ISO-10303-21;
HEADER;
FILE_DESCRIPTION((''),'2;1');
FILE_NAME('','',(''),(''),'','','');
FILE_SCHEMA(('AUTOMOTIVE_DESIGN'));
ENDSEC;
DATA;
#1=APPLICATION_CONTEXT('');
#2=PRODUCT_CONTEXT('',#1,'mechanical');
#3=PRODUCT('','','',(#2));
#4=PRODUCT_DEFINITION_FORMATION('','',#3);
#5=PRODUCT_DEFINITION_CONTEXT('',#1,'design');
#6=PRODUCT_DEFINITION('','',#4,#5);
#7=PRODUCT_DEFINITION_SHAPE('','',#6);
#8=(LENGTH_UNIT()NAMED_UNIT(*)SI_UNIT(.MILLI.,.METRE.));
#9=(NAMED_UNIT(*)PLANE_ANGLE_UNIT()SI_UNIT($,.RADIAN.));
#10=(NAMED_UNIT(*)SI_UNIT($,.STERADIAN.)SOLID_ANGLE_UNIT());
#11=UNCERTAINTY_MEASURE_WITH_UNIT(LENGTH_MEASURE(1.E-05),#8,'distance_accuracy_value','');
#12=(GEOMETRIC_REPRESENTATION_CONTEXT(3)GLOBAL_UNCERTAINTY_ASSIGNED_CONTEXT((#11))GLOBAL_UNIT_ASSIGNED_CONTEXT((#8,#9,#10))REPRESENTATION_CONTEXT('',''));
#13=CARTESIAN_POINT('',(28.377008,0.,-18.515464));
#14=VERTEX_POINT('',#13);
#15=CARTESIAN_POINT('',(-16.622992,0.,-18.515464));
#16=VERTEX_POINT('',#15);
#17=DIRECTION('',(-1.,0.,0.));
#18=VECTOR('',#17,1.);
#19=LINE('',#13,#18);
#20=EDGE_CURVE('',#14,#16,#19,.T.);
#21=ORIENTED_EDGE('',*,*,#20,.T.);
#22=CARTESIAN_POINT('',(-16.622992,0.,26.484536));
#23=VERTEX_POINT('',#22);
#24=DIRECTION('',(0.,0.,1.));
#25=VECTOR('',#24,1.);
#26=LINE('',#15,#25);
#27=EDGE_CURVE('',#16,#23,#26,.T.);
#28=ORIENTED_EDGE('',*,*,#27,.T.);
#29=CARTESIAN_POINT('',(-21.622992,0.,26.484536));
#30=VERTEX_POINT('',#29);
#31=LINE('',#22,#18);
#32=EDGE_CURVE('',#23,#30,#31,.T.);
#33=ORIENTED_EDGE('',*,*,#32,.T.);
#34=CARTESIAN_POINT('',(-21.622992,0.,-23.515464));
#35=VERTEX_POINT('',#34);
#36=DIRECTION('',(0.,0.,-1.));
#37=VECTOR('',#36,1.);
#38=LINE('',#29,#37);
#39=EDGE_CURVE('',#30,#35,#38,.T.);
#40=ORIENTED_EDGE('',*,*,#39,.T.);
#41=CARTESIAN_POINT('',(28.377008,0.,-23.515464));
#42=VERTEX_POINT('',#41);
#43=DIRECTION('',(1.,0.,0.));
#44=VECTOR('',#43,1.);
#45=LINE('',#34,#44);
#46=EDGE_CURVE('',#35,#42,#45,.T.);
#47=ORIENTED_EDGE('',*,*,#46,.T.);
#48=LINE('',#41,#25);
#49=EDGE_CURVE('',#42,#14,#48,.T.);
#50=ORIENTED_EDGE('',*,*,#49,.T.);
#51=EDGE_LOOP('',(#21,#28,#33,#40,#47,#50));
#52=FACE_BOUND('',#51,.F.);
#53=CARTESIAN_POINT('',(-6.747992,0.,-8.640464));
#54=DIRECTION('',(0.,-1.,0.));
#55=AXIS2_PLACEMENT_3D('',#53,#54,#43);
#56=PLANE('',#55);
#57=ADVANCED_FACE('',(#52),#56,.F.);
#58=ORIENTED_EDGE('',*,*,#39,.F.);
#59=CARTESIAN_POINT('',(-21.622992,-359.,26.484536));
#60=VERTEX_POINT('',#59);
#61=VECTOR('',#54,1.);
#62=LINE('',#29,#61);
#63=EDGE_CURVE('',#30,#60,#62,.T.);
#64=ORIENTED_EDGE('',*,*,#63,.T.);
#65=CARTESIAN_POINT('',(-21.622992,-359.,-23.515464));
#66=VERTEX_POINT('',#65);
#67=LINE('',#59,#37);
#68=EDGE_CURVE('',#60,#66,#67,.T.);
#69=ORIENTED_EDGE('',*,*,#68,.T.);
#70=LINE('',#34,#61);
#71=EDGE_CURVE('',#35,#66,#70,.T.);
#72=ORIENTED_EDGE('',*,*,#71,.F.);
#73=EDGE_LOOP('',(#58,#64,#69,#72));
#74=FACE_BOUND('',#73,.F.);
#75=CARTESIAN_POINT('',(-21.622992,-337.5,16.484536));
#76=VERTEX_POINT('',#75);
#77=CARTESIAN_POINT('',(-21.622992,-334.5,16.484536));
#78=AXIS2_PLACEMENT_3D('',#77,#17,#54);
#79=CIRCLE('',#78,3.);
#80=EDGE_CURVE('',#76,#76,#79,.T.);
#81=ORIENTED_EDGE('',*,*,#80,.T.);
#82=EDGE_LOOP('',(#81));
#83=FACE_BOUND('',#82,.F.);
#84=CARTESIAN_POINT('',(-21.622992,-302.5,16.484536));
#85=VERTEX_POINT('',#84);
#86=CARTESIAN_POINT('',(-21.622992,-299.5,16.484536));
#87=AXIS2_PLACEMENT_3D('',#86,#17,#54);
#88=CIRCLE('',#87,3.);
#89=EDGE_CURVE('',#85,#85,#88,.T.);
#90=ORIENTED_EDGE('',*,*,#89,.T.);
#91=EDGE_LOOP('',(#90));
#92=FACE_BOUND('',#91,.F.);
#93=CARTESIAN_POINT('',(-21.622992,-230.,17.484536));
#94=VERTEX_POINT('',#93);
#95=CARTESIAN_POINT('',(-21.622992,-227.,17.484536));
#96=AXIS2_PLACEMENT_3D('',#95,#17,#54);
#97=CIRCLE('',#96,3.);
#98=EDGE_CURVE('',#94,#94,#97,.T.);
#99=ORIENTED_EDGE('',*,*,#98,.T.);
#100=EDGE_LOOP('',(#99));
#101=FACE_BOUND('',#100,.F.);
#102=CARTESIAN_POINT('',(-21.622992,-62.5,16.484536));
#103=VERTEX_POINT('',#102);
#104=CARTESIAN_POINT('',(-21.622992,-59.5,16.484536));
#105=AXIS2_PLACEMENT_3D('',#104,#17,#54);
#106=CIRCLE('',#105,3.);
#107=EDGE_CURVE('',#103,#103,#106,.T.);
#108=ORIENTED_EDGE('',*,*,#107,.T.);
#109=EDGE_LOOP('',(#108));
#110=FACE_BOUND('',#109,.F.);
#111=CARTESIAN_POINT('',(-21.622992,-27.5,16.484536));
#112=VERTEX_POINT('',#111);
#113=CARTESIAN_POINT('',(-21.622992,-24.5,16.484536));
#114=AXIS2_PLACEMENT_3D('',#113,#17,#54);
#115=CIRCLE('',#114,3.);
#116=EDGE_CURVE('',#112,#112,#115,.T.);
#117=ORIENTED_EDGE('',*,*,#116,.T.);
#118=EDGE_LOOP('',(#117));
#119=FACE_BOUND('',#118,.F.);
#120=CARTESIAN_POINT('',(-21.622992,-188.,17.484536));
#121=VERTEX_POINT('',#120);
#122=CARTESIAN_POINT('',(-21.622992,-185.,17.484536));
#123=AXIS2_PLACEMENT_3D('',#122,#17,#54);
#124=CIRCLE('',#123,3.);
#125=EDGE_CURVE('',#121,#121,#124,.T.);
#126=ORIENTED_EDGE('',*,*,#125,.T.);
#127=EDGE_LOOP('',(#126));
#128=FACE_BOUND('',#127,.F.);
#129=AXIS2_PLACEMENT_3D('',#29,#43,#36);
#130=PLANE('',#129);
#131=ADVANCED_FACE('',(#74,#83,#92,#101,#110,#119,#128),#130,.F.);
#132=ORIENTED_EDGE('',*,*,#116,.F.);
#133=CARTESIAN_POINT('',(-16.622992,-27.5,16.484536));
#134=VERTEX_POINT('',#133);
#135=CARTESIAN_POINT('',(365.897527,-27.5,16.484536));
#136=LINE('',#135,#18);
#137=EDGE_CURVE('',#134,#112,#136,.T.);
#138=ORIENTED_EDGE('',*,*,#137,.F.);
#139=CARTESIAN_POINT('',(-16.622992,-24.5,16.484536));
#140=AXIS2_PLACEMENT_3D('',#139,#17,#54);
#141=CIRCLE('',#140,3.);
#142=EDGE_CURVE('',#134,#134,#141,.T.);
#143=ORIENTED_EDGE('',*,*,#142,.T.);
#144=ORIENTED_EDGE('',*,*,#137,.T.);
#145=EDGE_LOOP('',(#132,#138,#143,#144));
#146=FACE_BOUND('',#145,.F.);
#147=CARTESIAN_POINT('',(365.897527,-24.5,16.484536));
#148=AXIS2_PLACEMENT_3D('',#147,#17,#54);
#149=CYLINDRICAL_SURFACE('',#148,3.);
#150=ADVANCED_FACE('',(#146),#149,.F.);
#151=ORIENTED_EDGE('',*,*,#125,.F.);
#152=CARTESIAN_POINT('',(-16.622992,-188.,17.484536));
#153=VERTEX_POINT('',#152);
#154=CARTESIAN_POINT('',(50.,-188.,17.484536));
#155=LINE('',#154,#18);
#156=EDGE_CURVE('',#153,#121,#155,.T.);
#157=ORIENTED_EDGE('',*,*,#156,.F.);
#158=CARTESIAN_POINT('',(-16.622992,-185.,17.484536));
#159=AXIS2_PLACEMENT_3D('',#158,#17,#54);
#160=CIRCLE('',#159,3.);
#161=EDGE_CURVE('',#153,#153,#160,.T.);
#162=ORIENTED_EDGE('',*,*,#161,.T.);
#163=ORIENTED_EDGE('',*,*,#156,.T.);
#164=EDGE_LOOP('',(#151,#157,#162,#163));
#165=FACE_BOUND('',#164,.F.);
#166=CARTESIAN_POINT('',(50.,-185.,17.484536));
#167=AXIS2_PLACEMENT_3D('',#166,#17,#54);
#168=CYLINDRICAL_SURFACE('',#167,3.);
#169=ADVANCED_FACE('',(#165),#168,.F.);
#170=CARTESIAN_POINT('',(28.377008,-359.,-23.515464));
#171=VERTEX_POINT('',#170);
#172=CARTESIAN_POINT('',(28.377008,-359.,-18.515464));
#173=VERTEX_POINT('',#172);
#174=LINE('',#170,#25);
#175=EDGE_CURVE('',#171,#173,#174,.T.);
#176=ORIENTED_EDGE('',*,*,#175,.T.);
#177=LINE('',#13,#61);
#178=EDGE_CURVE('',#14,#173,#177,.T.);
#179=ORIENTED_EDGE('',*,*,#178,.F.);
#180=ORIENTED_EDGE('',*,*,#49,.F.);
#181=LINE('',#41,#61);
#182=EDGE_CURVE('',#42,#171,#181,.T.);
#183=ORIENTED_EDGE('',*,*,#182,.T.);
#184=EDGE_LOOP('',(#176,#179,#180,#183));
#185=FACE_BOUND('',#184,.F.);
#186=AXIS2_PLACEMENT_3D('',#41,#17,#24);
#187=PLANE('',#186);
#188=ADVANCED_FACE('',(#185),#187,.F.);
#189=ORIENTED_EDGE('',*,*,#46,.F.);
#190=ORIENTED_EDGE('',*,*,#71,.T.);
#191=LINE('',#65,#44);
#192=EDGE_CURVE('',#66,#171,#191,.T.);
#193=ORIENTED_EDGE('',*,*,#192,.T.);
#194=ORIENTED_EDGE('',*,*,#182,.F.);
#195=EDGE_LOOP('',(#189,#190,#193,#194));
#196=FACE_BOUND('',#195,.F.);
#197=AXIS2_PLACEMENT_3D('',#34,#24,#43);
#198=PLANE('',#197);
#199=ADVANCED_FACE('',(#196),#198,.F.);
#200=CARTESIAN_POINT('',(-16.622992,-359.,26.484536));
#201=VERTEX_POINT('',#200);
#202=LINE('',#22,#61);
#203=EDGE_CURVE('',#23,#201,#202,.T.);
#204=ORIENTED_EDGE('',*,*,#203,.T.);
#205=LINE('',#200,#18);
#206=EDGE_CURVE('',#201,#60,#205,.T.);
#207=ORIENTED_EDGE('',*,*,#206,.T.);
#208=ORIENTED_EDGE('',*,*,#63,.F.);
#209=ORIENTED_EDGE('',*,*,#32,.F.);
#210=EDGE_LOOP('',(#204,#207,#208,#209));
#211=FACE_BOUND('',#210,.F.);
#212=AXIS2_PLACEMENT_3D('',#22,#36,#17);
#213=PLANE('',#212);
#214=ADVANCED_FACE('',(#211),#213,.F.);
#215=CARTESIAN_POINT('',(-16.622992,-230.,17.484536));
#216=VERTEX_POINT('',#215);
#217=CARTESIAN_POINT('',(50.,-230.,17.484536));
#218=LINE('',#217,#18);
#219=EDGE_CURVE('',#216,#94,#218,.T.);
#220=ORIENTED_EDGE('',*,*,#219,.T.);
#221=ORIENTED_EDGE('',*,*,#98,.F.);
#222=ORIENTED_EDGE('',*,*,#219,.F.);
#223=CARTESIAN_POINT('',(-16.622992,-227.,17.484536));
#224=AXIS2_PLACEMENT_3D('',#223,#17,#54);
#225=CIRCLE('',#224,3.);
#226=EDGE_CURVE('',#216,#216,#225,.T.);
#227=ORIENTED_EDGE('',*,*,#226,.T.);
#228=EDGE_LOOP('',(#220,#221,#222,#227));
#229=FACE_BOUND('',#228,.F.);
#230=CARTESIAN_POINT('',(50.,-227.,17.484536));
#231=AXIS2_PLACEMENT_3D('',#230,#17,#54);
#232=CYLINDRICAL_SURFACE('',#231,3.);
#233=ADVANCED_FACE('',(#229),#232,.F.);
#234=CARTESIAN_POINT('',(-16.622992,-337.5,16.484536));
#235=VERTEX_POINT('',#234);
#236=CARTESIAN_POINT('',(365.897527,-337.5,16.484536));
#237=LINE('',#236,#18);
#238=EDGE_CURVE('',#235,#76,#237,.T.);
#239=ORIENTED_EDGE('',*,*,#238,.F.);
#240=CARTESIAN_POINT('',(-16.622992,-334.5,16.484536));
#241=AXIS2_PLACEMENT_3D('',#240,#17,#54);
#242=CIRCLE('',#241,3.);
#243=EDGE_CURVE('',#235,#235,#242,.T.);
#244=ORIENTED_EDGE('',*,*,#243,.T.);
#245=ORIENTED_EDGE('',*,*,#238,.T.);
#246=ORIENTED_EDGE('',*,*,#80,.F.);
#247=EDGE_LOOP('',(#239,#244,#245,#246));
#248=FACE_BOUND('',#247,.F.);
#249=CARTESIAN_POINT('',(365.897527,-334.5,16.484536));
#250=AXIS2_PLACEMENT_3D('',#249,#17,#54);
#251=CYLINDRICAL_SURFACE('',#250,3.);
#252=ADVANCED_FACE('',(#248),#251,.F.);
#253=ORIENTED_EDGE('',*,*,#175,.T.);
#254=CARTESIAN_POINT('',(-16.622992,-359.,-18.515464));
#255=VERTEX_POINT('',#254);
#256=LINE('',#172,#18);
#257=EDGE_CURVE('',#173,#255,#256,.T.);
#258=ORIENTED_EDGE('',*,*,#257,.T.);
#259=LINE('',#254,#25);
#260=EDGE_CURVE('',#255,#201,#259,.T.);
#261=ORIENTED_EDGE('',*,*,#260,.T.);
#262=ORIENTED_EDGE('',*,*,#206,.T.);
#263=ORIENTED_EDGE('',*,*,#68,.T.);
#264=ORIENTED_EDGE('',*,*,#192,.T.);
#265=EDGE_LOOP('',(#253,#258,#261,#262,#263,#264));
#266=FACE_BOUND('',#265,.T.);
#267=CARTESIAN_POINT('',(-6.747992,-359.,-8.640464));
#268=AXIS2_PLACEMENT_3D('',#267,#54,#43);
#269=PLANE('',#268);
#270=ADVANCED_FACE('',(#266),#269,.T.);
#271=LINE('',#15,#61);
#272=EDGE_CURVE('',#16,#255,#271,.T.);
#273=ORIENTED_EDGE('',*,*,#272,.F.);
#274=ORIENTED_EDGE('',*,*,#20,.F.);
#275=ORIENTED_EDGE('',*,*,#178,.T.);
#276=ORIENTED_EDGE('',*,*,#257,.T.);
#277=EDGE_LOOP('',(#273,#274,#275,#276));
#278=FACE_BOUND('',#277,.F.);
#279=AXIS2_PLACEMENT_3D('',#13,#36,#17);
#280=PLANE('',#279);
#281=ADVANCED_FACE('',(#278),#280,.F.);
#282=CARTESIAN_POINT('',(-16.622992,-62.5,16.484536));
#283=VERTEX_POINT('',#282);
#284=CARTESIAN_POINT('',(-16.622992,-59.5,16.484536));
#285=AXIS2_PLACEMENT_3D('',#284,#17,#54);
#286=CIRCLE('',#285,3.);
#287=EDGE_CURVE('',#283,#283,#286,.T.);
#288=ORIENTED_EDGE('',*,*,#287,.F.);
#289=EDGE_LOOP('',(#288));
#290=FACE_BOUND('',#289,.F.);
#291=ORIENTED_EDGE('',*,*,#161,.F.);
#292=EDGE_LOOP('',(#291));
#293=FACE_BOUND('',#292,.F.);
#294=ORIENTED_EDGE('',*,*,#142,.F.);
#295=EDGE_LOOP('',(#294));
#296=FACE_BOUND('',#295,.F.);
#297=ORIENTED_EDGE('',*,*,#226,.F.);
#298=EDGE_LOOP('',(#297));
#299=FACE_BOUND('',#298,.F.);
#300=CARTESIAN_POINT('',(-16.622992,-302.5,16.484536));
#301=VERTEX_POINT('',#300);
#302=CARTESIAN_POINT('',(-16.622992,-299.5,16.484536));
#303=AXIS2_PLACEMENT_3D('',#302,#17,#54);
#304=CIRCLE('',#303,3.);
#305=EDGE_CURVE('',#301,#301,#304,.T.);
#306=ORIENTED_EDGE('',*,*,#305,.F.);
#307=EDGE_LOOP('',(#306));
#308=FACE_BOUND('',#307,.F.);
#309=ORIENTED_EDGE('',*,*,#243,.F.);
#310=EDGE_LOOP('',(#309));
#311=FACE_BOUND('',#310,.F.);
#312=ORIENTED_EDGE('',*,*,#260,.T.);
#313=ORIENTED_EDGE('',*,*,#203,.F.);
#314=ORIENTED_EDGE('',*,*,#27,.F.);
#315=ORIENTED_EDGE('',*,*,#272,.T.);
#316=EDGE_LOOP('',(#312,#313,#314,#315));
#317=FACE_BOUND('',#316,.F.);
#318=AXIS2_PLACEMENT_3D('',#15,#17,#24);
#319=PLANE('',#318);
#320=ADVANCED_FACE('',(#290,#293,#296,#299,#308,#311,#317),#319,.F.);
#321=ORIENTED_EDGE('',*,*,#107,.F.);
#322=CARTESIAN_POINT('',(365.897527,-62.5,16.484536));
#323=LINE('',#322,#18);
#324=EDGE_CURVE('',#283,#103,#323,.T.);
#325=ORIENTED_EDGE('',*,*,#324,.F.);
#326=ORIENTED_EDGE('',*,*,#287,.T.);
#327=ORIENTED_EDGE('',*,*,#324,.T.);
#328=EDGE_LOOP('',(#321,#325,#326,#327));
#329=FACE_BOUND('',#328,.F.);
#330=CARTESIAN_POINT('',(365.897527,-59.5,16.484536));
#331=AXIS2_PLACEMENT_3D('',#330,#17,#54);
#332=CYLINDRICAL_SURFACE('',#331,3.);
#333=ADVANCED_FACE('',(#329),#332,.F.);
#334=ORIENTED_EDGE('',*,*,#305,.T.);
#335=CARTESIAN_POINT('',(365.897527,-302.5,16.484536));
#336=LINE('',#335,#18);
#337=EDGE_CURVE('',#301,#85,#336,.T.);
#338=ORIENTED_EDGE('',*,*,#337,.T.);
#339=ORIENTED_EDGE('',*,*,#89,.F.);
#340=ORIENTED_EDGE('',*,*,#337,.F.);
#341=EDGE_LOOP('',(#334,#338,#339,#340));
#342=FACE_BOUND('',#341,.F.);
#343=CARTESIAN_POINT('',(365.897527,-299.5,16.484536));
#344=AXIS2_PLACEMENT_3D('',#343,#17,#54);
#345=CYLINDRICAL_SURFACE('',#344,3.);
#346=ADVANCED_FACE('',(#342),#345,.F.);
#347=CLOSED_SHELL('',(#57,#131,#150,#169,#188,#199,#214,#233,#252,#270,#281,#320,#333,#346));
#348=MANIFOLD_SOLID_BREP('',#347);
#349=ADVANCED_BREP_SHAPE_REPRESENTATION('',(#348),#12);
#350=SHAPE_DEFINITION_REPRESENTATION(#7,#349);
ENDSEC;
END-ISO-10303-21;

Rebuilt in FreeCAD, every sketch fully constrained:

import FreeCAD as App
import Part
import Sketcher
Q = App.Units.Quantity


def add_polygon(sketch, points):
    """Adds a closed chain of lines whose ends are joined by coincident constraints."""
    first, n = sketch.GeometryCount, len(points)
    for a, b in zip(points, points[1:] + points[:1]):
        sketch.addGeometry(Part.LineSegment(App.Vector(*a, 0), App.Vector(*b, 0)), False)
    for i in range(n):
        sketch.addConstraint(Sketcher.Constraint("Coincident", first + i, 2, first + (i + 1) % n, 1))

doc = App.newDocument("Part")
body = doc.addObject("PartDesign::Body", "Body")

# Sketch on XZ plane
sketch1 = body.newObject("Sketcher::SketchObject", "Sketch")
sketch1.AttachmentSupport = (doc.getObject("XZ_Plane"), [""])
sketch1.MapMode = "FlatFace"
add_polygon(sketch1, [(-17, 26), (-22, 26), (-22, -24), (28, -24), (28, -19), (-17, -19)])  # lines 0-5
sketch1.addConstraint(Sketcher.Constraint("Horizontal", 0))
sketch1.addConstraint(Sketcher.Constraint("Vertical", 1))
sketch1.addConstraint(Sketcher.Constraint("Horizontal", 2))
sketch1.addConstraint(Sketcher.Constraint("Vertical", 3))
sketch1.addConstraint(Sketcher.Constraint("Horizontal", 4))
sketch1.addConstraint(Sketcher.Constraint("Vertical", 5))
sketch1.addConstraint(Sketcher.Constraint("Equal", 2, 1))
sketch1.addConstraint(Sketcher.Constraint("Equal", 0, 3))
sketch1.addConstraint(Sketcher.Constraint("DistanceX", 0, 2, 0, 1, Q("5 mm")))
sketch1.addConstraint(Sketcher.Constraint("DistanceX", 2, 1, 2, 2, Q("50 mm")))
sketch1.addConstraint(Sketcher.Constraint("DistanceX", 0, 2, -1, 1, Q("21.622992 mm")))
sketch1.addConstraint(Sketcher.Constraint("DistanceY", -1, 1, 0, 2, Q("26.484536 mm")))
pad1 = body.newObject("PartDesign::Pad", "Pad")
pad1.Profile = sketch1
pad1.Length = 359

# Sketch on YZ plane
sketch2 = body.newObject("Sketcher::SketchObject", "Sketch001")
sketch2.AttachmentSupport = (doc.getObject("YZ_Plane"), [""])
sketch2.MapMode = "FlatFace"
sketch2.addGeometry(Part.Circle(App.Vector(-334.5, 16.5, 0), App.Vector(0, 0, 1), 3), False)
sketch2.addConstraint(Sketcher.Constraint("Diameter", 0, Q("6 mm")))
sketch2.addConstraint(Sketcher.Constraint("DistanceX", 0, 3, -1, 1, Q("334.5 mm")))
sketch2.addConstraint(Sketcher.Constraint("DistanceY", -1, 1, 0, 3, Q("16.484536 mm")))
doc.recompute()
hole = body.newObject("PartDesign::Hole", "Hole")
hole.Profile = sketch2
hole.ThreadType = "None"
hole.Diameter = 6
hole.DepthType = "ThroughAll"

# Sketch on YZ plane
sketch3 = body.newObject("Sketcher::SketchObject", "Sketch002")
sketch3.AttachmentSupport = (doc.getObject("YZ_Plane"), [""])
sketch3.MapMode = "FlatFace"
sketch3.addGeometry(Part.Circle(App.Vector(-24.5, 16.5, 0), App.Vector(0, 0, 1), 3), False)
sketch3.addConstraint(Sketcher.Constraint("Diameter", 0, Q("6 mm")))
sketch3.addConstraint(Sketcher.Constraint("DistanceX", 0, 3, -1, 1, Q("24.5 mm")))
sketch3.addConstraint(Sketcher.Constraint("DistanceY", -1, 1, 0, 3, Q("16.484536 mm")))
doc.recompute()
hole2 = body.newObject("PartDesign::Hole", "Hole001")
hole2.Profile = sketch3
hole2.ThreadType = "None"
hole2.Diameter = 6
hole2.DepthType = "ThroughAll"

# Sketch on YZ plane
sketch4 = body.newObject("Sketcher::SketchObject", "Sketch003")
sketch4.AttachmentSupport = (doc.getObject("YZ_Plane"), [""])
sketch4.MapMode = "FlatFace"
sketch4.addGeometry(Part.Circle(App.Vector(-299.5, 16.5, 0), App.Vector(0, 0, 1), 3), False)
sketch4.addConstraint(Sketcher.Constraint("Diameter", 0, Q("6 mm")))
sketch4.addConstraint(Sketcher.Constraint("DistanceX", 0, 3, -1, 1, Q("299.5 mm")))
sketch4.addConstraint(Sketcher.Constraint("DistanceY", -1, 1, 0, 3, Q("16.484536 mm")))
doc.recompute()
hole3 = body.newObject("PartDesign::Hole", "Hole002")
hole3.Profile = sketch4
hole3.ThreadType = "None"
hole3.Diameter = 6
hole3.DepthType = "ThroughAll"

# Sketch on YZ plane
sketch5 = body.newObject("Sketcher::SketchObject", "Sketch004")
sketch5.AttachmentSupport = (doc.getObject("YZ_Plane"), [""])
sketch5.MapMode = "FlatFace"
sketch5.addGeometry(Part.Circle(App.Vector(-59.5, 16.5, 0), App.Vector(0, 0, 1), 3), False)
sketch5.addConstraint(Sketcher.Constraint("Diameter", 0, Q("6 mm")))
sketch5.addConstraint(Sketcher.Constraint("DistanceX", 0, 3, -1, 1, Q("59.5 mm")))
sketch5.addConstraint(Sketcher.Constraint("DistanceY", -1, 1, 0, 3, Q("16.484536 mm")))
doc.recompute()
hole4 = body.newObject("PartDesign::Hole", "Hole003")
hole4.Profile = sketch5
hole4.ThreadType = "None"
hole4.Diameter = 6
hole4.DepthType = "ThroughAll"

# Sketch on YZ plane
sketch6 = body.newObject("Sketcher::SketchObject", "Sketch005")
sketch6.AttachmentSupport = (doc.getObject("YZ_Plane"), [""])
sketch6.MapMode = "FlatFace"
sketch6.addGeometry(Part.Circle(App.Vector(-227, 17.5, 0), App.Vector(0, 0, 1), 3), False)
sketch6.addGeometry(Part.Circle(App.Vector(-185, 17.5, 0), App.Vector(0, 0, 1), 3), False)
sketch6.addConstraint(Sketcher.Constraint("Equal", 0, 1))
sketch6.addConstraint(Sketcher.Constraint("Horizontal", 0, 3, 1, 3))
sketch6.addConstraint(Sketcher.Constraint("Diameter", 0, Q("6 mm")))
sketch6.addConstraint(Sketcher.Constraint("DistanceX", 0, 3, -1, 1, Q("227 mm")))
sketch6.addConstraint(Sketcher.Constraint("DistanceX", 1, 3, -1, 1, Q("185 mm")))
sketch6.addConstraint(Sketcher.Constraint("DistanceY", -1, 1, 0, 3, Q("17.484536 mm")))
doc.recompute()
hole5 = body.newObject("PartDesign::Hole", "Hole004")
hole5.Profile = sketch6
hole5.ThreadType = "None"
hole5.Diameter = 6
hole5.DepthType = "Dimension"
hole5.Depth = 50
hole5.DrillPoint = "Flat"

doc.recompute()
